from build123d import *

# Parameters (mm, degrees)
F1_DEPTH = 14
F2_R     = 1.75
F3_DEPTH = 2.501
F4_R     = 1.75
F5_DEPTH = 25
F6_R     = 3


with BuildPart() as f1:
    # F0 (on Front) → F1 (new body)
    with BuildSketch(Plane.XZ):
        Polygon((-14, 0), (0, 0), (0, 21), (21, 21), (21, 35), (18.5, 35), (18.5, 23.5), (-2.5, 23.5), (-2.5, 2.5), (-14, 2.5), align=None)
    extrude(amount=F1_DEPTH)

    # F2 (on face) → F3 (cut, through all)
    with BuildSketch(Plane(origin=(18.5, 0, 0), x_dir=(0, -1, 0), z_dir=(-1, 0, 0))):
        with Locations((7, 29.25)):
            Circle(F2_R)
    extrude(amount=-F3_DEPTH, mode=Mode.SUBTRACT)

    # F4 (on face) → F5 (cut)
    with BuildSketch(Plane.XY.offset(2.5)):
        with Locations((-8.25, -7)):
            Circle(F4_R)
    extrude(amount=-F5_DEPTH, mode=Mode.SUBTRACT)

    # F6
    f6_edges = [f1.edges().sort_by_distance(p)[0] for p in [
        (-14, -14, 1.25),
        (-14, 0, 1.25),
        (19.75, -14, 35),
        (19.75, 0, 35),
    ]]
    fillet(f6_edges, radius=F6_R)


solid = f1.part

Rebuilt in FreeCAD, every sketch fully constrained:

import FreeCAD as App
import Part
import Sketcher
from FreeCAD import Vector
Q = App.Units.Quantity


def edges_at(feature, points):
    """Names of the edges that pass closest to the given points."""
    edges = feature.Shape.Edges
    near = lambda p: min(range(len(edges)), key=lambda i: edges[i].distToShape(Part.Vertex(*p))[0])
    return sorted({f"Edge{near(p) + 1}" for p in points})

doc = App.newDocument("Part")
body = doc.addObject("PartDesign::Body", "Body")

# Sketch on XZ plane
sketch1 = doc.addObject("Sketcher::SketchObject", "Sketch")
body.addObject(sketch1)
sketch1.AttachmentSupport = (doc.XZ_Plane, [""])
sketch1.MapMode = "FlatFace"
sketch1.addGeometry(Part.LineSegment(Vector(-14, 0, 0), Vector(0, 0, 0)), False)
sketch1.addGeometry(Part.LineSegment(Vector(0, 0, 0), Vector(0, 21, 0)), False)
sketch1.addGeometry(Part.LineSegment(Vector(0, 21, 0), Vector(21, 21, 0)), False)
sketch1.addGeometry(Part.LineSegment(Vector(21, 21, 0), Vector(21, 35, 0)), False)
sketch1.addGeometry(Part.LineSegment(Vector(21, 35, 0), Vector(18.5, 35, 0)), False)
sketch1.addGeometry(Part.LineSegment(Vector(18.5, 35, 0), Vector(18.5, 23.5, 0)), False)
sketch1.addGeometry(Part.LineSegment(Vector(18.5, 23.5, 0), Vector(-2.5, 23.5, 0)), False)
sketch1.addGeometry(Part.LineSegment(Vector(-2.5, 23.5, 0), Vector(-2.5, 2.5, 0)), False)
sketch1.addGeometry(Part.LineSegment(Vector(-2.5, 2.5, 0), Vector(-14, 2.5, 0)), False)
sketch1.addGeometry(Part.LineSegment(Vector(-14, 2.5, 0), Vector(-14, 0, 0)), False)
sketch1.addConstraint(Sketcher.Constraint("Coincident", 0, 2, 1, 1))
sketch1.addConstraint(Sketcher.Constraint("Coincident", 1, 2, 2, 1))
sketch1.addConstraint(Sketcher.Constraint("Coincident", 2, 2, 3, 1))
sketch1.addConstraint(Sketcher.Constraint("Coincident", 3, 2, 4, 1))
sketch1.addConstraint(Sketcher.Constraint("Coincident", 4, 2, 5, 1))
sketch1.addConstraint(Sketcher.Constraint("Coincident", 5, 2, 6, 1))
sketch1.addConstraint(Sketcher.Constraint("Coincident", 6, 2, 7, 1))
sketch1.addConstraint(Sketcher.Constraint("Coincident", 7, 2, 8, 1))
sketch1.addConstraint(Sketcher.Constraint("Coincident", 8, 2, 9, 1))
sketch1.addConstraint(Sketcher.Constraint("Coincident", 9, 2, 0, 1))
sketch1.addConstraint(Sketcher.Constraint("Horizontal", 0))
sketch1.addConstraint(Sketcher.Constraint("Vertical", 1))
sketch1.addConstraint(Sketcher.Constraint("Horizontal", 2))
sketch1.addConstraint(Sketcher.Constraint("Vertical", 3))
sketch1.addConstraint(Sketcher.Constraint("Horizontal", 4))
sketch1.addConstraint(Sketcher.Constraint("Vertical", 5))
sketch1.addConstraint(Sketcher.Constraint("Horizontal", 6))
sketch1.addConstraint(Sketcher.Constraint("Vertical", 7))
sketch1.addConstraint(Sketcher.Constraint("Horizontal", 8))
sketch1.addConstraint(Sketcher.Constraint("Vertical", 9))
sketch1.addConstraint(Sketcher.Constraint("Coincident", 0, 2, -1, 1))
sketch1.addConstraint(Sketcher.Constraint("Equal", 2, 6))
sketch1.addConstraint(Sketcher.Constraint("Equal", 6, 1))
sketch1.addConstraint(Sketcher.Constraint("Equal", 0, 3))
sketch1.addConstraint(Sketcher.Constraint("Equal", 8, 5))
sketch1.addConstraint(Sketcher.Constraint("Equal", 1, 7))
sketch1.addConstraint(Sketcher.Constraint("DistanceX", 0, 1, 0, 2, Q("14 mm")))
sketch1.addConstraint(Sketcher.Constraint("DistanceX", 2, 1, 2, 2, Q("21 mm")))
sketch1.addConstraint(Sketcher.Constraint("DistanceX", 4, 2, 4, 1, Q("2.5 mm")))
pad1 = doc.addObject("PartDesign::Pad", "Pad")
body.addObject(pad1)
pad1.Profile = sketch1
pad1.Length = 14

# Sketch on YZ plane
sketch2 = doc.addObject("Sketcher::SketchObject", "Sketch001")
body.addObject(sketch2)
sketch2.AttachmentSupport = (doc.YZ_Plane, [""])
sketch2.MapMode = "FlatFace"
sketch2.AttachmentOffset = App.Placement(Vector(0, 0, 18.5), App.Rotation())
sketch2.addGeometry(Part.Circle(Vector(-7, 29.2, 0), Vector(0, 0, 1), 1.8), False)
sketch2.addConstraint(Sketcher.Constraint("Diameter", 0, Q("3.5 mm")))
sketch2.addConstraint(Sketcher.Constraint("DistanceX", 0, 3, -1, 1, Q("7 mm")))
sketch2.addConstraint(Sketcher.Constraint("DistanceY", -1, 1, 0, 3, Q("29.25 mm")))
pocket1 = doc.addObject("PartDesign::Pocket", "Pocket")
body.addObject(pocket1)
pocket1.Profile = sketch2
pocket1.Type = "ThroughAll"
pocket1.Reversed = True

# Sketch on XY plane
sketch3 = doc.addObject("Sketcher::SketchObject", "Sketch002")
body.addObject(sketch3)
sketch3.AttachmentSupport = (doc.XY_Plane, [""])
sketch3.MapMode = "FlatFace"
sketch3.AttachmentOffset = App.Placement(Vector(0, 0, 2.5), App.Rotation())
sketch3.addGeometry(Part.Circle(Vector(-8.2, -7, 0), Vector(0, 0, 1), 1.8), False)
sketch3.addConstraint(Sketcher.Constraint("Diameter", 0, Q("3.5 mm")))
sketch3.addConstraint(Sketcher.Constraint("DistanceY", 0, 3, -1, 1, Q("7 mm")))
sketch3.addConstraint(Sketcher.Constraint("DistanceX", 0, 3, -1, 1, Q("8.25 mm")))
pocket2 = doc.addObject("PartDesign::Pocket", "Pocket001")
body.addObject(pocket2)
pocket2.Profile = sketch3
pocket2.Length = 25
doc.recompute()

fillet = doc.addObject("PartDesign::Fillet", "Fillet")
body.addObject(fillet)
fillet.Base = (pocket2, edges_at(pocket2, [
    (-14, -14, 1.25),
    (-14, 0, 1.25),
    (19.75, -14, 35),
    (19.75, 0, 35),
]))
fillet.Radius = 3

doc.recompute()
